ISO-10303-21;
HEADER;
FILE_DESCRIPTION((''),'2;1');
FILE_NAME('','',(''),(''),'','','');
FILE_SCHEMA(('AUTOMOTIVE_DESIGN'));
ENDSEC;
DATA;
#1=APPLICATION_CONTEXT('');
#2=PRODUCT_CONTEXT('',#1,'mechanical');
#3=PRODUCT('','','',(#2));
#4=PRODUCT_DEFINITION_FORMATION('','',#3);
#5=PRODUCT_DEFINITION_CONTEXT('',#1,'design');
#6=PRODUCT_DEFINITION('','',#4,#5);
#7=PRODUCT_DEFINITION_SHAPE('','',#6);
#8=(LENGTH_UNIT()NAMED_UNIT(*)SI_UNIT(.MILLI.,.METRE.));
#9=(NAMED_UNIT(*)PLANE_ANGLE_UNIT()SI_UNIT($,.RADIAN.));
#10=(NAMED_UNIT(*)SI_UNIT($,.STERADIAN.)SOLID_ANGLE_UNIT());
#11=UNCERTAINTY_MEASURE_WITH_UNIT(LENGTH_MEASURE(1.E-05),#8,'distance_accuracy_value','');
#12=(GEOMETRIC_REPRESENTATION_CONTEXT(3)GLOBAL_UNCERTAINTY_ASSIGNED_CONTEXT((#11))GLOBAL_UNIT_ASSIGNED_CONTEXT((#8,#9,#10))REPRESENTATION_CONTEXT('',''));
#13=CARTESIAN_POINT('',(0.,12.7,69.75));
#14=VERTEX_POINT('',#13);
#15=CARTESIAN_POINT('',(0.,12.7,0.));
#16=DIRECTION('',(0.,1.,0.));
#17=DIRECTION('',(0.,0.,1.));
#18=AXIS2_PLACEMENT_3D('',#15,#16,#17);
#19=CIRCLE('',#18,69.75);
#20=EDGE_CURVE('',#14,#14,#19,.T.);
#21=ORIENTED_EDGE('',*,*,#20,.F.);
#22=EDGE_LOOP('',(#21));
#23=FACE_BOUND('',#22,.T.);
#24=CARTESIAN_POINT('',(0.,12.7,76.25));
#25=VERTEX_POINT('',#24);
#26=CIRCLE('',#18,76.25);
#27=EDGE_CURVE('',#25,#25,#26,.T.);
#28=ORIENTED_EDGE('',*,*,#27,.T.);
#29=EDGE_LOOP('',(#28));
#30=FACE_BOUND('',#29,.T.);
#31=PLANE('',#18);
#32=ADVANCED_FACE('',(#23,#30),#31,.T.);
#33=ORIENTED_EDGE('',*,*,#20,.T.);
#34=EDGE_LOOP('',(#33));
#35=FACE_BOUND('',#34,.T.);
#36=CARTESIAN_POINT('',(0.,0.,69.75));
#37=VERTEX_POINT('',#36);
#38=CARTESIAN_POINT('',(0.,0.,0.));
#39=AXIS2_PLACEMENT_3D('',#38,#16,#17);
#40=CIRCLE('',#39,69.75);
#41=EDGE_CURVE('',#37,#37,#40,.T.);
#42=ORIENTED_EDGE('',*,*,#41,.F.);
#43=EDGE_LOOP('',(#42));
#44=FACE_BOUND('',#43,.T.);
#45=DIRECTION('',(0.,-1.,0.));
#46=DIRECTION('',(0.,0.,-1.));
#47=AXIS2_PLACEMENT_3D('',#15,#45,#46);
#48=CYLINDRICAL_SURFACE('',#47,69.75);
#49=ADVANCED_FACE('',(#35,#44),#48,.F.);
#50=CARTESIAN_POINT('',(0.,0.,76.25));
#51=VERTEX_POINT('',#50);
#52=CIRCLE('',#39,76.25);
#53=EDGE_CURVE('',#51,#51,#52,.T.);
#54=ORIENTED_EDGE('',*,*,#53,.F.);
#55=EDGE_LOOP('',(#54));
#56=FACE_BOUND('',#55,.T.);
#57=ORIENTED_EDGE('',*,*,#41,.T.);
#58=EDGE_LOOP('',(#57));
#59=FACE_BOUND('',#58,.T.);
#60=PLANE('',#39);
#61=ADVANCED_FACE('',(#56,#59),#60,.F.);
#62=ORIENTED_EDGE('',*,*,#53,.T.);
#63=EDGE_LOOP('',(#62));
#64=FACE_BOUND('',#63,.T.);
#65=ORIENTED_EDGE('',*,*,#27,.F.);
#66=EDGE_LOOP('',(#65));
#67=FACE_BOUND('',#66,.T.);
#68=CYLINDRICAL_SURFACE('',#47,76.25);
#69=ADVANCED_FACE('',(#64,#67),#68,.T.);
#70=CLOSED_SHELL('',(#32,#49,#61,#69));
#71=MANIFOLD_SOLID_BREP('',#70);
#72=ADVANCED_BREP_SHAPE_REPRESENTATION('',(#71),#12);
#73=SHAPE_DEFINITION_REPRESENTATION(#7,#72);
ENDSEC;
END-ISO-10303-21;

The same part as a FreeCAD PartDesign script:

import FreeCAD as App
import Part
import Sketcher

doc = App.newDocument("Part")
body = doc.addObject("PartDesign::Body", "Body")

# Sketch on XZ plane
sketch1 = doc.addObject("Sketcher::SketchObject", "Sketch")
body.addObject(sketch1)
sketch1.AttachmentSupport = (doc.XZ_Plane, [""])
sketch1.MapMode = "FlatFace"
sketch1.addGeometry([
    Part.Circle(App.Vector(0, 0, 0), App.Vector(0, 0, 1), 76),
    Part.Circle(App.Vector(0, 0, 0), App.Vector(0, 0, 1), 70),
], False)
sketch1.addConstraint([
    Sketcher.Constraint("Coincident", 0, 3, -1, 1),
    Sketcher.Constraint("Coincident", 1, 3, -1, 1),
    Sketcher.Constraint("Diameter", 0, 152.5),
    Sketcher.Constraint("Diameter", 1, 139.5),
])
pad1 = doc.addObject("PartDesign::Pad", "Pad")
body.addObject(pad1)
pad1.Profile = sketch1
pad1.Length = 12.7
pad1.Reversed = True

doc.recompute()
